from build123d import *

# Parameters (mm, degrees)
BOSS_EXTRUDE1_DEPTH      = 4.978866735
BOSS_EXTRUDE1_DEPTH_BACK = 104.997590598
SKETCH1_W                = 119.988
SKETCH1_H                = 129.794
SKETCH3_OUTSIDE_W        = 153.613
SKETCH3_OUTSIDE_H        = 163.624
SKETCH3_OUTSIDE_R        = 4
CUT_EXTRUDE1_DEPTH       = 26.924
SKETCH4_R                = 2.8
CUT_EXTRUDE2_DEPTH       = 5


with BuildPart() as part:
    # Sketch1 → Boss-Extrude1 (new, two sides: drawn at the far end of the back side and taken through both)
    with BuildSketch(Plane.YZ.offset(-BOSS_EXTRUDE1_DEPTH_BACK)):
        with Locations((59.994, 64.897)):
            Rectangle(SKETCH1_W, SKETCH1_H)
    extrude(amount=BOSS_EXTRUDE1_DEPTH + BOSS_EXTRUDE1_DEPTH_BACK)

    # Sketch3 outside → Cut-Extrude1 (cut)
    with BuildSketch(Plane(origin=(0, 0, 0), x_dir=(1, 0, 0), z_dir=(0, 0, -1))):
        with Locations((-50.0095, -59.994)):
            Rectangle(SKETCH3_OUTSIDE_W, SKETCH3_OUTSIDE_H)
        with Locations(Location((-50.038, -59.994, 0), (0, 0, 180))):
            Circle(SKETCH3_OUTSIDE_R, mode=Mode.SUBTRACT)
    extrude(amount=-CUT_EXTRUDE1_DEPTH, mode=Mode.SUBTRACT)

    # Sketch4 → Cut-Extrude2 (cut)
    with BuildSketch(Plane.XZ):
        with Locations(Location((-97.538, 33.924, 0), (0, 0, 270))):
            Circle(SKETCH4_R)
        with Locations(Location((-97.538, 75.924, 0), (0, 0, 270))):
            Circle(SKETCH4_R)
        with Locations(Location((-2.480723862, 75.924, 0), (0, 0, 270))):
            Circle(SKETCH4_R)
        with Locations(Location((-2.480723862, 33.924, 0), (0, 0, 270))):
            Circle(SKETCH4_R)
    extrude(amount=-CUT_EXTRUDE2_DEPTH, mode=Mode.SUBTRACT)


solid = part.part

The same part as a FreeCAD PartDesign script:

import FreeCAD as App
import Part
import Sketcher


def add_polygon(sketch, points):
    """Adds a closed chain of lines whose ends are joined by coincident constraints."""
    first, n = sketch.GeometryCount, len(points)
    for a, b in zip(points, points[1:] + points[:1]):
        sketch.addGeometry(Part.LineSegment(App.Vector(*a, 0), App.Vector(*b, 0)), False)
    for i in range(n):
        sketch.addConstraint(Sketcher.Constraint("Coincident", first + i, 2, first + (i + 1) % n, 1))

doc = App.newDocument("Part")
body = doc.addObject("PartDesign::Body", "Body")

sketch1 = doc.addObject("Sketcher::SketchObject", "Sketch")
body.addObject(sketch1)
sketch1.AttachmentSupport = (doc.YZ_Plane, [""])
sketch1.MapMode = "FlatFace"
add_polygon(sketch1, [(0, 130), (0, 0), (120, 0), (120, 130)])
sketch1.addConstraint(Sketcher.Constraint("Vertical", 0))
sketch1.addConstraint(Sketcher.Constraint("Horizontal", 1))
sketch1.addConstraint(Sketcher.Constraint("Vertical", 2))
sketch1.addConstraint(Sketcher.Constraint("Horizontal", 3))
sketch1.addConstraint(Sketcher.Constraint("Coincident", 0, 2, -1, 1))
sketch1.addConstraint(Sketcher.Constraint("DistanceX", 1, 1, 1, 2, 119.988))
sketch1.addConstraint(Sketcher.Constraint("DistanceY", 0, 2, 0, 1, 129.794))
pad1 = doc.addObject("PartDesign::Pad", "Pad")
body.addObject(pad1)
pad1.Profile = sketch1
pad1.Type = "TwoLengths"
pad1.Length = 4.978867
pad1.Length2 = 104.997591

sketch2 = doc.addObject("Sketcher::SketchObject", "Sketch001")
body.addObject(sketch2)
sketch2.AttachmentSupport = (doc.XY_Plane, [""])
sketch2.MapMode = "FlatFace"
add_polygon(sketch2, [(-126.8, -21.8), (-126.8, 141.8), (26.8, 141.8), (26.8, -21.8)])
sketch2.addGeometry(Part.Circle(App.Vector(-50, 60, 0), App.Vector(0, 0, 1), 4), False)
sketch2.addConstraint(Sketcher.Constraint("Vertical", 0))
sketch2.addConstraint(Sketcher.Constraint("Horizontal", 1))
sketch2.addConstraint(Sketcher.Constraint("Vertical", 2))
sketch2.addConstraint(Sketcher.Constraint("Horizontal", 3))
sketch2.addConstraint(Sketcher.Constraint("Diameter", 4, 8.0))
sketch2.addConstraint(Sketcher.Constraint("DistanceX", 1, 1, 1, 2, 153.613))
sketch2.addConstraint(Sketcher.Constraint("DistanceY", 0, 1, 0, 2, 163.624))
sketch2.addConstraint(Sketcher.Constraint("DistanceX", 4, 3, -1, 1, 50.038))
sketch2.addConstraint(Sketcher.Constraint("DistanceY", -1, 1, 4, 3, 59.994))
sketch2.addConstraint(Sketcher.Constraint("DistanceX", 0, 2, -1, 1, 126.816))
sketch2.addConstraint(Sketcher.Constraint("DistanceY", -1, 1, 0, 2, 141.806))
pocket1 = doc.addObject("PartDesign::Pocket", "Pocket")
body.addObject(pocket1)
pocket1.Profile = sketch2
pocket1.Length = 26.924
pocket1.Reversed = True

sketch3 = doc.addObject("Sketcher::SketchObject", "Sketch002")
body.addObject(sketch3)
sketch3.AttachmentSupport = (doc.XZ_Plane, [""])
sketch3.MapMode = "FlatFace"
sketch3.addGeometry(Part.Circle(App.Vector(-97.5, 33.9, 0), App.Vector(0, 0, 1), 2.8), False)
sketch3.addGeometry(Part.Circle(App.Vector(-97.5, 75.9, 0), App.Vector(0, 0, 1), 2.8), False)
sketch3.addGeometry(Part.Circle(App.Vector(-2.5, 75.9, 0), App.Vector(0, 0, 1), 2.8), False)
sketch3.addGeometry(Part.Circle(App.Vector(-2.5, 33.9, 0), App.Vector(0, 0, 1), 2.8), False)
sketch3.addConstraint(Sketcher.Constraint("Equal", 0, 1))
sketch3.addConstraint(Sketcher.Constraint("Equal", 1, 2))
sketch3.addConstraint(Sketcher.Constraint("Equal", 2, 3))
sketch3.addConstraint(Sketcher.Constraint("Horizontal", 1, 3, 2, 3))
sketch3.addConstraint(Sketcher.Constraint("Horizontal", 0, 3, 3, 3))
sketch3.addConstraint(Sketcher.Constraint("Vertical", 0, 3, 1, 3))
sketch3.addConstraint(Sketcher.Constraint("Vertical", 2, 3, 3, 3))
sketch3.addConstraint(Sketcher.Constraint("Diameter", 0, 5.6))
sketch3.addConstraint(Sketcher.Constraint("DistanceY", 0, 3, 1, 3, 42.0))
sketch3.addConstraint(Sketcher.Constraint("DistanceX", 0, 3, -1, 1, 97.538))
sketch3.addConstraint(Sketcher.Constraint("DistanceY", -1, 1, 0, 3, 33.924))
sketch3.addConstraint(Sketcher.Constraint("DistanceX", 2, 3, -1, 1, 2.480724))
pocket2 = doc.addObject("PartDesign::Pocket", "Pocket001")
body.addObject(pocket2)
pocket2.Profile = sketch3
pocket2.Length = 5

doc.recompute()
